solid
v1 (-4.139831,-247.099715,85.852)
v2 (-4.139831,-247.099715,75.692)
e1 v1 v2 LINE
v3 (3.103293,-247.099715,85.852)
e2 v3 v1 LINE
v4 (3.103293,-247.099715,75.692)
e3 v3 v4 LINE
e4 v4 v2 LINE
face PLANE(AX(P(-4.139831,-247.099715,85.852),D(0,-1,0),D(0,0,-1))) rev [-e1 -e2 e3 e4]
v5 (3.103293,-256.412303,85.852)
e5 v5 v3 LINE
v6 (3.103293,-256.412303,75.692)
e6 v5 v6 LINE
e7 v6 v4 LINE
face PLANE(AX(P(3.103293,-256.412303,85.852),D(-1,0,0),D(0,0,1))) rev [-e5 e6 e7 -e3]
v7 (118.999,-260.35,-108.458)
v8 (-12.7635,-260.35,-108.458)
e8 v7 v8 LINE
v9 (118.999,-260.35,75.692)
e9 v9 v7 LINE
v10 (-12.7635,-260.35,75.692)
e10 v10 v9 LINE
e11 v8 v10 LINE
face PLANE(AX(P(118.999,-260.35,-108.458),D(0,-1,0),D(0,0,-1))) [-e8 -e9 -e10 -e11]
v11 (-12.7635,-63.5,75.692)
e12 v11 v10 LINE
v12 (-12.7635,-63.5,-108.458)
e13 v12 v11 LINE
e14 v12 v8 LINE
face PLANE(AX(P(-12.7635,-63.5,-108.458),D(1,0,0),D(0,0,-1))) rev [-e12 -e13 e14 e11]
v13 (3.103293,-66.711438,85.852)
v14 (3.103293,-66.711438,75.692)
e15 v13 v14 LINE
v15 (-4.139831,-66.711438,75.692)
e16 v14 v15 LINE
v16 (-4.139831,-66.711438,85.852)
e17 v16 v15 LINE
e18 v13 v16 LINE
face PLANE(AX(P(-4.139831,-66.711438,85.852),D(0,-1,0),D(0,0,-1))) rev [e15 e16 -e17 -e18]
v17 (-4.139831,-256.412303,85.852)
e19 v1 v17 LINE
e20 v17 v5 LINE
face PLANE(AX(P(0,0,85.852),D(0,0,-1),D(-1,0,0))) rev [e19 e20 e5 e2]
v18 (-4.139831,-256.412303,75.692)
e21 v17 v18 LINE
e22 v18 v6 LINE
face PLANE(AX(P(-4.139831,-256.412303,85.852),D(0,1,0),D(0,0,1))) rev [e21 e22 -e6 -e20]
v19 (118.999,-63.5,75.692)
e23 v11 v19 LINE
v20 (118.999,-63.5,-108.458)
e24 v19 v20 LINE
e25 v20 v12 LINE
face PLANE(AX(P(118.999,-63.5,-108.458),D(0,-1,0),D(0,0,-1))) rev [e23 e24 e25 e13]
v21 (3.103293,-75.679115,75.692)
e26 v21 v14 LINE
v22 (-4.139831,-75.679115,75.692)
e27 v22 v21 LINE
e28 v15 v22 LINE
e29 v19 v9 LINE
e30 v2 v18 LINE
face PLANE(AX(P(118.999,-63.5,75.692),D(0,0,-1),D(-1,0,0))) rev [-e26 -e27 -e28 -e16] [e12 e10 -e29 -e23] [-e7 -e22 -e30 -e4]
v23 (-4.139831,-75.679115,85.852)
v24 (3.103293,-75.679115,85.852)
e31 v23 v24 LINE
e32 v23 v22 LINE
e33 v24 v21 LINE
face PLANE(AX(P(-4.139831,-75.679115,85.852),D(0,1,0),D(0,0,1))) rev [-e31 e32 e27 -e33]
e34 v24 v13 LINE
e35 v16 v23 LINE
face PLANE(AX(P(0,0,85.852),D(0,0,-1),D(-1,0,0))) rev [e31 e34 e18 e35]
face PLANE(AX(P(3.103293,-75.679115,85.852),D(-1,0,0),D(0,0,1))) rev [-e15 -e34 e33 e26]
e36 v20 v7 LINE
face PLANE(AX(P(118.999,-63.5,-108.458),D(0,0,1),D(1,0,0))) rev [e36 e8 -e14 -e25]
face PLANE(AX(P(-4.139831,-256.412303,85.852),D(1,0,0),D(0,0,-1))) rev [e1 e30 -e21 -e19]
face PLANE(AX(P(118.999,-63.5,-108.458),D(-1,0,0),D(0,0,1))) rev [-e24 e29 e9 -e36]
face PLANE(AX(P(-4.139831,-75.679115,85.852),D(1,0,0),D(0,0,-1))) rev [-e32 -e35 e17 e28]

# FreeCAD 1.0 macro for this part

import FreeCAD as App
import Part
import Sketcher
Q = App.Units.Quantity


def add_polygon(sketch, points):
    """Adds a closed chain of lines whose ends are joined by coincident constraints."""
    first, n = sketch.GeometryCount, len(points)
    for a, b in zip(points, points[1:] + points[:1]):
        sketch.addGeometry(Part.LineSegment(App.Vector(*a, 0), App.Vector(*b, 0)), False)
    for i in range(n):
        sketch.addConstraint(Sketcher.Constraint("Coincident", first + i, 2, first + (i + 1) % n, 1))

doc = App.newDocument("Part")
body = doc.addObject("PartDesign::Body", "Body")

sketch1 = body.newObject("Sketcher::SketchObject", "Sketch")
sketch1.AttachmentSupport = (doc.getObject("XZ_Plane"), [""])
sketch1.MapMode = "FlatFace"
add_polygon(sketch1, [(-132, 0), (-132, 184), (0, 184), (0, 0)])
sketch1.addConstraint([
    Sketcher.Constraint("Vertical", 0),
    Sketcher.Constraint("Horizontal", 1),
    Sketcher.Constraint("Vertical", 2),
    Sketcher.Constraint("Horizontal", 3),
    Sketcher.Constraint("Coincident", 2, 2, -1, 1),
    Sketcher.Constraint("DistanceY", 0, 1, 0, 2, Q("7.25 in")),
    Sketcher.Constraint("DistanceX", 1, 1, 1, 2, Q("5.1875 in")),
])
pad1 = body.newObject("PartDesign::Pad", "Pad")
pad1.Profile = sketch1
pad1.Length = Q("7.75 in")
pad1.Reversed = True
body2 = doc.addObject("PartDesign::Body", "Body001")
doc.recompute()

body.Placement = App.Placement(App.Vector(118.999, -260.35, -108.458), App.Rotation(App.Vector(0, 0, 1), 0))
boolean = body2.newObject("PartDesign::Boolean", "Boolean")
boolean.Type = "Fuse"
boolean.addObjects([body])

sketch2 = body2.newObject("Sketcher::SketchObject", "Sketch001")
sketch2.AttachmentSupport = (doc.getObject("XY_Plane001"), [""])
sketch2.MapMode = "FlatFace"
sketch2.AttachmentOffset = App.Placement(App.Vector(0, 0, 2.98 * 25.4), App.Rotation())
add_polygon(sketch2, [(-4, -67), (-4, -76), (3, -76), (3, -67)])
add_polygon(sketch2, [(-4, -247), (-4, -256), (3, -256), (3, -247)])
sketch2.addConstraint([
    Sketcher.Constraint("Vertical", 0),
    Sketcher.Constraint("Horizontal", 1),
    Sketcher.Constraint("Vertical", 2),
    Sketcher.Constraint("Horizontal", 3),
    Sketcher.Constraint("Vertical", 4),
    Sketcher.Constraint("Horizontal", 5),
    Sketcher.Constraint("Vertical", 6),
    Sketcher.Constraint("Horizontal", 7),
    Sketcher.Constraint("Vertical", 3, 2, 4, 2),
    Sketcher.Constraint("Vertical", 2, 2, 5, 2),
    Sketcher.Constraint("DistanceY", 6, 2, 1, 2, 171.4206),
    Sketcher.Constraint("DistanceX", 1, 1, 1, 2, 7.243124),
    Sketcher.Constraint("DistanceY", 0, 2, 0, 1, 8.967677),
    Sketcher.Constraint("DistanceY", 4, 2, 4, 1, 9.312588),
    Sketcher.Constraint("DistanceX", 0, 2, -1, 1, 4.139831),
    Sketcher.Constraint("DistanceY", 0, 2, -1, 1, 75.679115),
])
pad2 = body2.newObject("PartDesign::Pad", "Pad001")
pad2.Profile = sketch2
pad2.Length = Q("0.4 in")

doc.recompute()
